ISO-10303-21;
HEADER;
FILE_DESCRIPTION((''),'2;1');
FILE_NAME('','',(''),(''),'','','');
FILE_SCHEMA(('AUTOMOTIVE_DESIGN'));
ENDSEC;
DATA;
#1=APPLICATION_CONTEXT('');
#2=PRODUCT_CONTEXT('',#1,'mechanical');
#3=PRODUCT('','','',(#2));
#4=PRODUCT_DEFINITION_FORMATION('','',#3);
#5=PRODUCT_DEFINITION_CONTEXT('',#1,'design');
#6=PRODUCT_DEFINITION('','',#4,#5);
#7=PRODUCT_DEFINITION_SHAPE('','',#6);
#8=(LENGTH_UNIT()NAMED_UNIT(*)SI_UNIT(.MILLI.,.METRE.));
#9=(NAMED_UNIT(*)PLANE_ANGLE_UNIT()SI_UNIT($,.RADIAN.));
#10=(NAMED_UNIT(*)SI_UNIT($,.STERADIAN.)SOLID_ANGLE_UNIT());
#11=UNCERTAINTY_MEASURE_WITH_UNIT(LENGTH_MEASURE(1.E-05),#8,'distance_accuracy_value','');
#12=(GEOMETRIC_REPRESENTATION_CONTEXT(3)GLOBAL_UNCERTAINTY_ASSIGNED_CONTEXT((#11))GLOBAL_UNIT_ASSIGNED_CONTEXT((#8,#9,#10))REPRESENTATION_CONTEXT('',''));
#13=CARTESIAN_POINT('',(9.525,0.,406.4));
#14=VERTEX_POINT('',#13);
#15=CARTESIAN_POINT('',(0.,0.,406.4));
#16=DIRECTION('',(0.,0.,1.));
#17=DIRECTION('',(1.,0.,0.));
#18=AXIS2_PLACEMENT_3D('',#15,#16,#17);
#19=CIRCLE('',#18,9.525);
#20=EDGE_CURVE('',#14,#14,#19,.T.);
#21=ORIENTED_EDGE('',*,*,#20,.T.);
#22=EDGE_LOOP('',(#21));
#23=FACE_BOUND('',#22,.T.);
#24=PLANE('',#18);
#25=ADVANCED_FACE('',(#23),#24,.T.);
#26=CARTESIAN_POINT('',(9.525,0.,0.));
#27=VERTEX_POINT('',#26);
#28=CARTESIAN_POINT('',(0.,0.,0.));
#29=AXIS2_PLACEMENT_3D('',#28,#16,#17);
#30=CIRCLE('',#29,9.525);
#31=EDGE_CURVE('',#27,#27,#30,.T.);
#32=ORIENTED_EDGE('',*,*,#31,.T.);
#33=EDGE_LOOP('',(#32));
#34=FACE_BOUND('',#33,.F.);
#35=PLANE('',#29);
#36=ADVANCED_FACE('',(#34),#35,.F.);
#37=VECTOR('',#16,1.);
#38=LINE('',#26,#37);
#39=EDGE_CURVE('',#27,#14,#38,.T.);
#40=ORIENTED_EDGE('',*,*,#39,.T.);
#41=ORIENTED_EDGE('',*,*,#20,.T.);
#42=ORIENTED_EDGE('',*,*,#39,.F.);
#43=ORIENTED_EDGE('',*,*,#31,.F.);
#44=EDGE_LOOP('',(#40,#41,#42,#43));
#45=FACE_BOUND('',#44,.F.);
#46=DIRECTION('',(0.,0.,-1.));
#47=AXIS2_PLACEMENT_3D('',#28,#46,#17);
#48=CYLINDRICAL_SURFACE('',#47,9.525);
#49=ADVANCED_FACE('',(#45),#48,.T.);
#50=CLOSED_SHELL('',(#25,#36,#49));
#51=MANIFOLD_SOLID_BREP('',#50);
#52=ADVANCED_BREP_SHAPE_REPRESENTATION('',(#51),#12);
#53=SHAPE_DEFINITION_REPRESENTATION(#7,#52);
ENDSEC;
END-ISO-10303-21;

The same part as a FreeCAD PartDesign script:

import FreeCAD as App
import Part
import Sketcher
Q = App.Units.Quantity

doc = App.newDocument("Part")
body = doc.addObject("PartDesign::Body", "Body")

sketch1 = body.newObject("Sketcher::SketchObject", "Sketch")
sketch1.AttachmentSupport = (doc.getObject("XY_Plane"), [""])
sketch1.MapMode = "FlatFace"
sketch1.addGeometry(Part.Circle(App.Vector(0, 0, 0), App.Vector(0, 0, 1), 10), False)
sketch1.addConstraint([
    Sketcher.Constraint("Coincident", 0, 3, -1, 1),
    Sketcher.Constraint("Diameter", 0, Q("0.75 in")),
])
pad1 = body.newObject("PartDesign::Pad", "Pad")
pad1.Profile = sketch1
pad1.Length = Q("16 in")

doc.recompute()
